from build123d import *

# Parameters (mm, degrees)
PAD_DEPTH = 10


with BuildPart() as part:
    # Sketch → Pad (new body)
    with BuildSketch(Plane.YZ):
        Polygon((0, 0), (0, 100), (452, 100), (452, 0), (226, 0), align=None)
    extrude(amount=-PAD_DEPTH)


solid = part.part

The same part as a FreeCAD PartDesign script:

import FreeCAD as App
import Part
import Sketcher

V = App.Vector

doc = App.newDocument("Part")
body = doc.addObject("PartDesign::Body", "Body")

# Sketch on YZ plane
sketch1 = body.newObject("Sketcher::SketchObject", "Sketch")
sketch1.AttachmentSupport = (doc.getObject("YZ_Plane"), [""])
sketch1.MapMode = "FlatFace"
sketch1.addGeometry([
    Part.LineSegment(V(0, 100, 0), V(0, 0, 0)),
    Part.LineSegment(V(0, 0, 0), V(452, 0, 0)),
    Part.LineSegment(V(452, 0, 0), V(452, 100, 0)),
    Part.LineSegment(V(452, 100, 0), V(0, 100, 0)),
], False)
sketch1.addConstraint([
    Sketcher.Constraint("Coincident", 0, 2, 1, 1),
    Sketcher.Constraint("Coincident", 1, 2, 2, 1),
    Sketcher.Constraint("Coincident", 2, 2, 3, 1),
    Sketcher.Constraint("Coincident", 3, 2, 0, 1),
    Sketcher.Constraint("Vertical", 0),
    Sketcher.Constraint("Horizontal", 1),
    Sketcher.Constraint("Vertical", 2),
    Sketcher.Constraint("Horizontal", 3),
    Sketcher.Constraint("Coincident", 0, 2, -1, 1),
    Sketcher.Constraint("DistanceX", 1, 1, 1, 2, 452.0),
    Sketcher.Constraint("DistanceY", 0, 2, 0, 1, 100.0),
])
pad1 = body.newObject("PartDesign::Pad", "Pad")
pad1.Profile = sketch1
pad1.Length = 10
pad1.Reversed = True

doc.recompute()
